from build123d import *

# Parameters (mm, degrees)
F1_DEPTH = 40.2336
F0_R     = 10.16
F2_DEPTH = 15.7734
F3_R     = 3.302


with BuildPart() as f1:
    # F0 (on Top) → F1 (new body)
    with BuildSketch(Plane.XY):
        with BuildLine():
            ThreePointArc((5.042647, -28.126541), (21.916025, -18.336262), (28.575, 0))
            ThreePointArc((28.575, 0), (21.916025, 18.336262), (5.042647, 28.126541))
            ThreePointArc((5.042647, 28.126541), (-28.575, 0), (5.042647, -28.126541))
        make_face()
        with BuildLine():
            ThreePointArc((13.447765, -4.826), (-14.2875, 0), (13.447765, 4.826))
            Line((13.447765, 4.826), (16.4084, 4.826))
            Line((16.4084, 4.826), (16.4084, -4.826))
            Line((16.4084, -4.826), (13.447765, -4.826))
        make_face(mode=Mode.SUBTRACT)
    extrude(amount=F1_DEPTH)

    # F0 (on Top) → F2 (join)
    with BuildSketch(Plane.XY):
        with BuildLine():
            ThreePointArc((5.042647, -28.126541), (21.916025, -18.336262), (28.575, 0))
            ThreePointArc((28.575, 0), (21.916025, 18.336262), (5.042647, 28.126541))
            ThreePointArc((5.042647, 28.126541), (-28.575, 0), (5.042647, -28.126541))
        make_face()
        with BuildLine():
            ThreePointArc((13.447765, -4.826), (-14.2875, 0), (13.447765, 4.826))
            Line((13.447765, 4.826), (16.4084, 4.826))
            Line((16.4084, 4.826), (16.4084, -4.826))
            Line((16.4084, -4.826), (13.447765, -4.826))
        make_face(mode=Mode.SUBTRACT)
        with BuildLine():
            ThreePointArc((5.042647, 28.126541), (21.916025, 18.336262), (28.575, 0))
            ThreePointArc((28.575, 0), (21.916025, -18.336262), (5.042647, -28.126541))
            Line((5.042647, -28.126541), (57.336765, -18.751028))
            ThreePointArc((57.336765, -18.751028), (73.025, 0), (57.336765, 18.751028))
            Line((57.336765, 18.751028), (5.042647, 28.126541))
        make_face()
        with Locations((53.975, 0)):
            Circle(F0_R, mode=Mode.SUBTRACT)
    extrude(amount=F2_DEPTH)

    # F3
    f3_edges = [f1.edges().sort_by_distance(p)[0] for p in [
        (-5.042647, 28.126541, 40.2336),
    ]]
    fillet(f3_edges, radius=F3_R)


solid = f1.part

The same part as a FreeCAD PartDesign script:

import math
import FreeCAD as App
import Part
import Sketcher
from FreeCAD import Vector
Q = App.Units.Quantity


def edges_at(feature, points):
    """Names of the edges that pass closest to the given points."""
    edges = feature.Shape.Edges
    near = lambda p: min(range(len(edges)), key=lambda i: edges[i].distToShape(Part.Vertex(*p))[0])
    return sorted({f"Edge{near(p) + 1}" for p in points})

doc = App.newDocument("Part")
params = doc.addObject("Spreadsheet::Sheet", "Params")
for row, (alias, value) in enumerate([
    ("sketch1_radius", "1.1249999 in"),
    ("sketch1_radius2", "0.5625 in"),
    ("sketch1_height", "0.38 in"),
    ("pad1_length", "1.584 in"),
    ("sketch2_diameter", "0.8 in"),
    ("sketch2_radius", "0.75 in"),
    ("sketch2_radius2", "1.125 in"),
    ("sketch2_radius3", "0.5625 in"),
    ("sketch2_height", "0.38 in"),
    ("pad2_length", "0.621 in"),
    ("fillet_radius", "0.13 in"),
], start=1):
    params.set(f"A{row}", alias)
    params.set(f"B{row}", "=" + value)
    params.setAlias(f"B{row}", alias)

body = doc.addObject("PartDesign::Body", "Body")

# Sketch on XY plane
sketch1 = body.newObject("Sketcher::SketchObject", "Sketch")
sketch1.AttachmentSupport = (doc.getObject("XY_Plane"), [""])
sketch1.MapMode = "FlatFace"
sketch1.addGeometry([
    Part.ArcOfCircle(Part.Circle(Vector(0, 0, 0), Vector(0, 0, 1), 28.6), math.radians(-80), math.radians(0)),  # 0
    Part.ArcOfCircle(Part.Circle(Vector(0, 0, 0), Vector(0, 0, 1), 28.6), math.radians(0), math.radians(80)),  # 1
    Part.ArcOfCircle(Part.Circle(Vector(0, 0, 0), Vector(0, 0, 1), 28.6), math.radians(80), math.radians(280)),  # 2
    Part.LineSegment(Vector(16.4, -4.8, 0), Vector(13.4, -4.8, 0)),  # 3
    Part.ArcOfCircle(Part.Circle(Vector(0, 0, 0), Vector(0, 0, 1), 14.3), math.radians(20), math.radians(340)),  # 4
    Part.LineSegment(Vector(13.4, 4.8, 0), Vector(16.4, 4.8, 0)),  # 5
    Part.LineSegment(Vector(16.4, 4.8, 0), Vector(16.4, -4.8, 0)),  # 6
], False)
sketch1.addConstraint([
    Sketcher.Constraint("Tangent", 0, 2, 1, 1),
    Sketcher.Constraint("Tangent", 1, 2, 2, 1),
    Sketcher.Constraint("Tangent", 2, 2, 0, 1),
    Sketcher.Constraint("Coincident", 3, 2, 4, 2),
    Sketcher.Constraint("Coincident", 4, 1, 5, 1),
    Sketcher.Constraint("Coincident", 5, 2, 6, 1),
    Sketcher.Constraint("Coincident", 6, 2, 3, 1),
    Sketcher.Constraint("Horizontal", 3),
    Sketcher.Constraint("Horizontal", 5),
    Sketcher.Constraint("Vertical", 6),
    Sketcher.Constraint("Coincident", 0, 3, -1, 1),
    Sketcher.Constraint("Coincident", 4, 3, -1, 1),
    Sketcher.Constraint("PointOnObject", 0, 2, -1),
    Sketcher.Constraint("Vertical", 1, 2, 2, 2),
    Sketcher.Constraint("Vertical", 3, 2, 4, 1),
    Sketcher.Constraint("Radius", 0, Q("1.1249999 in")),
    Sketcher.Constraint("Radius", 4, Q("0.5625 in")),
    Sketcher.Constraint("DistanceY", 6, 2, 6, 1, Q("0.38 in")),
    Sketcher.Constraint("DistanceX", -1, 1, 5, 2, Q("0.646 in")),
    Sketcher.Constraint("DistanceY", -1, 1, 1, 2, 28.126541),
])
sketch1.setExpression("Constraints[15]", "Params.sketch1_radius")
sketch1.setExpression("Constraints[16]", "Params.sketch1_radius2")
sketch1.setExpression("Constraints[17]", "Params.sketch1_height")
pad1 = body.newObject("PartDesign::Pad", "Pad")
pad1.Profile = sketch1
pad1.setExpression("Length", "Params.pad1_length")

# Sketch on XY plane
sketch2 = body.newObject("Sketcher::SketchObject", "Sketch001")
sketch2.AttachmentSupport = (doc.getObject("XY_Plane"), [""])
sketch2.MapMode = "FlatFace"
sketch2.addGeometry([
    Part.ArcOfCircle(Part.Circle(Vector(0, 0, 0), Vector(0, 0, 1), 28.6), math.radians(80), math.radians(280)),  # 0
    Part.LineSegment(Vector(5, -28.1, 0), Vector(57.3, -18.8, 0)),  # 1
    Part.ArcOfCircle(Part.Circle(Vector(54, 0, 0), Vector(0, 0, 1), 19.1), math.radians(-80), math.radians(80)),  # 2
    Part.LineSegment(Vector(57.3, 18.8, 0), Vector(5, 28.1, 0)),  # 3
    Part.LineSegment(Vector(16.4, -4.8, 0), Vector(13.4, -4.8, 0)),  # 4
    Part.ArcOfCircle(Part.Circle(Vector(0, 0, 0), Vector(0, 0, 1), 14.3), math.radians(20), math.radians(340)),  # 5
    Part.LineSegment(Vector(13.4, 4.8, 0), Vector(16.4, 4.8, 0)),  # 6
    Part.LineSegment(Vector(16.4, 4.8, 0), Vector(16.4, -4.8, 0)),  # 7
    Part.Circle(Vector(54, 0, 0), Vector(0, 0, 1), 10.2),  # 8
], False)
sketch2.addConstraint([
    Sketcher.Constraint("Tangent", 0, 2, 1, 1),
    Sketcher.Constraint("Tangent", 1, 2, 2, 1),
    Sketcher.Constraint("Tangent", 2, 2, 3, 1),
    Sketcher.Constraint("Tangent", 3, 2, 0, 1),
    Sketcher.Constraint("Coincident", 4, 2, 5, 2),
    Sketcher.Constraint("Coincident", 5, 1, 6, 1),
    Sketcher.Constraint("Coincident", 6, 2, 7, 1),
    Sketcher.Constraint("Coincident", 7, 2, 4, 1),
    Sketcher.Constraint("Horizontal", 4),
    Sketcher.Constraint("Horizontal", 6),
    Sketcher.Constraint("Vertical", 7),
    Sketcher.Constraint("Coincident", 0, 3, -1, 1),
    Sketcher.Constraint("Coincident", 5, 3, -1, 1),
    Sketcher.Constraint("Coincident", 8, 3, 2, 3),
    Sketcher.Constraint("PointOnObject", 2, 3, -1),
    Sketcher.Constraint("Vertical", 4, 2, 5, 1),
    Sketcher.Constraint("Diameter", 8, Q("0.8 in")),
    Sketcher.Constraint("Radius", 2, Q("0.75 in")),
    Sketcher.Constraint("Radius", 0, Q("1.125 in")),
    Sketcher.Constraint("Radius", 5, Q("0.5625 in")),
    Sketcher.Constraint("DistanceY", 7, 2, 7, 1, Q("0.38 in")),
    Sketcher.Constraint("DistanceX", -1, 1, 2, 3, Q("2.125 in")),
    Sketcher.Constraint("DistanceX", -1, 1, 6, 2, Q("0.646 in")),
])
sketch2.setExpression("Constraints[16]", "Params.sketch2_diameter")
sketch2.setExpression("Constraints[17]", "Params.sketch2_radius")
sketch2.setExpression("Constraints[18]", "Params.sketch2_radius2")
sketch2.setExpression("Constraints[19]", "Params.sketch2_radius3")
sketch2.setExpression("Constraints[20]", "Params.sketch2_height")
pad2 = body.newObject("PartDesign::Pad", "Pad001")
pad2.Profile = sketch2
pad2.setExpression("Length", "Params.pad2_length")
doc.recompute()

fillet = body.newObject("PartDesign::Fillet", "Fillet")
fillet.Base = (pad2, edges_at(pad2, [(-28.575, 0, 40.234)]))
fillet.setExpression("Radius", "Params.fillet_radius")

doc.recompute()
